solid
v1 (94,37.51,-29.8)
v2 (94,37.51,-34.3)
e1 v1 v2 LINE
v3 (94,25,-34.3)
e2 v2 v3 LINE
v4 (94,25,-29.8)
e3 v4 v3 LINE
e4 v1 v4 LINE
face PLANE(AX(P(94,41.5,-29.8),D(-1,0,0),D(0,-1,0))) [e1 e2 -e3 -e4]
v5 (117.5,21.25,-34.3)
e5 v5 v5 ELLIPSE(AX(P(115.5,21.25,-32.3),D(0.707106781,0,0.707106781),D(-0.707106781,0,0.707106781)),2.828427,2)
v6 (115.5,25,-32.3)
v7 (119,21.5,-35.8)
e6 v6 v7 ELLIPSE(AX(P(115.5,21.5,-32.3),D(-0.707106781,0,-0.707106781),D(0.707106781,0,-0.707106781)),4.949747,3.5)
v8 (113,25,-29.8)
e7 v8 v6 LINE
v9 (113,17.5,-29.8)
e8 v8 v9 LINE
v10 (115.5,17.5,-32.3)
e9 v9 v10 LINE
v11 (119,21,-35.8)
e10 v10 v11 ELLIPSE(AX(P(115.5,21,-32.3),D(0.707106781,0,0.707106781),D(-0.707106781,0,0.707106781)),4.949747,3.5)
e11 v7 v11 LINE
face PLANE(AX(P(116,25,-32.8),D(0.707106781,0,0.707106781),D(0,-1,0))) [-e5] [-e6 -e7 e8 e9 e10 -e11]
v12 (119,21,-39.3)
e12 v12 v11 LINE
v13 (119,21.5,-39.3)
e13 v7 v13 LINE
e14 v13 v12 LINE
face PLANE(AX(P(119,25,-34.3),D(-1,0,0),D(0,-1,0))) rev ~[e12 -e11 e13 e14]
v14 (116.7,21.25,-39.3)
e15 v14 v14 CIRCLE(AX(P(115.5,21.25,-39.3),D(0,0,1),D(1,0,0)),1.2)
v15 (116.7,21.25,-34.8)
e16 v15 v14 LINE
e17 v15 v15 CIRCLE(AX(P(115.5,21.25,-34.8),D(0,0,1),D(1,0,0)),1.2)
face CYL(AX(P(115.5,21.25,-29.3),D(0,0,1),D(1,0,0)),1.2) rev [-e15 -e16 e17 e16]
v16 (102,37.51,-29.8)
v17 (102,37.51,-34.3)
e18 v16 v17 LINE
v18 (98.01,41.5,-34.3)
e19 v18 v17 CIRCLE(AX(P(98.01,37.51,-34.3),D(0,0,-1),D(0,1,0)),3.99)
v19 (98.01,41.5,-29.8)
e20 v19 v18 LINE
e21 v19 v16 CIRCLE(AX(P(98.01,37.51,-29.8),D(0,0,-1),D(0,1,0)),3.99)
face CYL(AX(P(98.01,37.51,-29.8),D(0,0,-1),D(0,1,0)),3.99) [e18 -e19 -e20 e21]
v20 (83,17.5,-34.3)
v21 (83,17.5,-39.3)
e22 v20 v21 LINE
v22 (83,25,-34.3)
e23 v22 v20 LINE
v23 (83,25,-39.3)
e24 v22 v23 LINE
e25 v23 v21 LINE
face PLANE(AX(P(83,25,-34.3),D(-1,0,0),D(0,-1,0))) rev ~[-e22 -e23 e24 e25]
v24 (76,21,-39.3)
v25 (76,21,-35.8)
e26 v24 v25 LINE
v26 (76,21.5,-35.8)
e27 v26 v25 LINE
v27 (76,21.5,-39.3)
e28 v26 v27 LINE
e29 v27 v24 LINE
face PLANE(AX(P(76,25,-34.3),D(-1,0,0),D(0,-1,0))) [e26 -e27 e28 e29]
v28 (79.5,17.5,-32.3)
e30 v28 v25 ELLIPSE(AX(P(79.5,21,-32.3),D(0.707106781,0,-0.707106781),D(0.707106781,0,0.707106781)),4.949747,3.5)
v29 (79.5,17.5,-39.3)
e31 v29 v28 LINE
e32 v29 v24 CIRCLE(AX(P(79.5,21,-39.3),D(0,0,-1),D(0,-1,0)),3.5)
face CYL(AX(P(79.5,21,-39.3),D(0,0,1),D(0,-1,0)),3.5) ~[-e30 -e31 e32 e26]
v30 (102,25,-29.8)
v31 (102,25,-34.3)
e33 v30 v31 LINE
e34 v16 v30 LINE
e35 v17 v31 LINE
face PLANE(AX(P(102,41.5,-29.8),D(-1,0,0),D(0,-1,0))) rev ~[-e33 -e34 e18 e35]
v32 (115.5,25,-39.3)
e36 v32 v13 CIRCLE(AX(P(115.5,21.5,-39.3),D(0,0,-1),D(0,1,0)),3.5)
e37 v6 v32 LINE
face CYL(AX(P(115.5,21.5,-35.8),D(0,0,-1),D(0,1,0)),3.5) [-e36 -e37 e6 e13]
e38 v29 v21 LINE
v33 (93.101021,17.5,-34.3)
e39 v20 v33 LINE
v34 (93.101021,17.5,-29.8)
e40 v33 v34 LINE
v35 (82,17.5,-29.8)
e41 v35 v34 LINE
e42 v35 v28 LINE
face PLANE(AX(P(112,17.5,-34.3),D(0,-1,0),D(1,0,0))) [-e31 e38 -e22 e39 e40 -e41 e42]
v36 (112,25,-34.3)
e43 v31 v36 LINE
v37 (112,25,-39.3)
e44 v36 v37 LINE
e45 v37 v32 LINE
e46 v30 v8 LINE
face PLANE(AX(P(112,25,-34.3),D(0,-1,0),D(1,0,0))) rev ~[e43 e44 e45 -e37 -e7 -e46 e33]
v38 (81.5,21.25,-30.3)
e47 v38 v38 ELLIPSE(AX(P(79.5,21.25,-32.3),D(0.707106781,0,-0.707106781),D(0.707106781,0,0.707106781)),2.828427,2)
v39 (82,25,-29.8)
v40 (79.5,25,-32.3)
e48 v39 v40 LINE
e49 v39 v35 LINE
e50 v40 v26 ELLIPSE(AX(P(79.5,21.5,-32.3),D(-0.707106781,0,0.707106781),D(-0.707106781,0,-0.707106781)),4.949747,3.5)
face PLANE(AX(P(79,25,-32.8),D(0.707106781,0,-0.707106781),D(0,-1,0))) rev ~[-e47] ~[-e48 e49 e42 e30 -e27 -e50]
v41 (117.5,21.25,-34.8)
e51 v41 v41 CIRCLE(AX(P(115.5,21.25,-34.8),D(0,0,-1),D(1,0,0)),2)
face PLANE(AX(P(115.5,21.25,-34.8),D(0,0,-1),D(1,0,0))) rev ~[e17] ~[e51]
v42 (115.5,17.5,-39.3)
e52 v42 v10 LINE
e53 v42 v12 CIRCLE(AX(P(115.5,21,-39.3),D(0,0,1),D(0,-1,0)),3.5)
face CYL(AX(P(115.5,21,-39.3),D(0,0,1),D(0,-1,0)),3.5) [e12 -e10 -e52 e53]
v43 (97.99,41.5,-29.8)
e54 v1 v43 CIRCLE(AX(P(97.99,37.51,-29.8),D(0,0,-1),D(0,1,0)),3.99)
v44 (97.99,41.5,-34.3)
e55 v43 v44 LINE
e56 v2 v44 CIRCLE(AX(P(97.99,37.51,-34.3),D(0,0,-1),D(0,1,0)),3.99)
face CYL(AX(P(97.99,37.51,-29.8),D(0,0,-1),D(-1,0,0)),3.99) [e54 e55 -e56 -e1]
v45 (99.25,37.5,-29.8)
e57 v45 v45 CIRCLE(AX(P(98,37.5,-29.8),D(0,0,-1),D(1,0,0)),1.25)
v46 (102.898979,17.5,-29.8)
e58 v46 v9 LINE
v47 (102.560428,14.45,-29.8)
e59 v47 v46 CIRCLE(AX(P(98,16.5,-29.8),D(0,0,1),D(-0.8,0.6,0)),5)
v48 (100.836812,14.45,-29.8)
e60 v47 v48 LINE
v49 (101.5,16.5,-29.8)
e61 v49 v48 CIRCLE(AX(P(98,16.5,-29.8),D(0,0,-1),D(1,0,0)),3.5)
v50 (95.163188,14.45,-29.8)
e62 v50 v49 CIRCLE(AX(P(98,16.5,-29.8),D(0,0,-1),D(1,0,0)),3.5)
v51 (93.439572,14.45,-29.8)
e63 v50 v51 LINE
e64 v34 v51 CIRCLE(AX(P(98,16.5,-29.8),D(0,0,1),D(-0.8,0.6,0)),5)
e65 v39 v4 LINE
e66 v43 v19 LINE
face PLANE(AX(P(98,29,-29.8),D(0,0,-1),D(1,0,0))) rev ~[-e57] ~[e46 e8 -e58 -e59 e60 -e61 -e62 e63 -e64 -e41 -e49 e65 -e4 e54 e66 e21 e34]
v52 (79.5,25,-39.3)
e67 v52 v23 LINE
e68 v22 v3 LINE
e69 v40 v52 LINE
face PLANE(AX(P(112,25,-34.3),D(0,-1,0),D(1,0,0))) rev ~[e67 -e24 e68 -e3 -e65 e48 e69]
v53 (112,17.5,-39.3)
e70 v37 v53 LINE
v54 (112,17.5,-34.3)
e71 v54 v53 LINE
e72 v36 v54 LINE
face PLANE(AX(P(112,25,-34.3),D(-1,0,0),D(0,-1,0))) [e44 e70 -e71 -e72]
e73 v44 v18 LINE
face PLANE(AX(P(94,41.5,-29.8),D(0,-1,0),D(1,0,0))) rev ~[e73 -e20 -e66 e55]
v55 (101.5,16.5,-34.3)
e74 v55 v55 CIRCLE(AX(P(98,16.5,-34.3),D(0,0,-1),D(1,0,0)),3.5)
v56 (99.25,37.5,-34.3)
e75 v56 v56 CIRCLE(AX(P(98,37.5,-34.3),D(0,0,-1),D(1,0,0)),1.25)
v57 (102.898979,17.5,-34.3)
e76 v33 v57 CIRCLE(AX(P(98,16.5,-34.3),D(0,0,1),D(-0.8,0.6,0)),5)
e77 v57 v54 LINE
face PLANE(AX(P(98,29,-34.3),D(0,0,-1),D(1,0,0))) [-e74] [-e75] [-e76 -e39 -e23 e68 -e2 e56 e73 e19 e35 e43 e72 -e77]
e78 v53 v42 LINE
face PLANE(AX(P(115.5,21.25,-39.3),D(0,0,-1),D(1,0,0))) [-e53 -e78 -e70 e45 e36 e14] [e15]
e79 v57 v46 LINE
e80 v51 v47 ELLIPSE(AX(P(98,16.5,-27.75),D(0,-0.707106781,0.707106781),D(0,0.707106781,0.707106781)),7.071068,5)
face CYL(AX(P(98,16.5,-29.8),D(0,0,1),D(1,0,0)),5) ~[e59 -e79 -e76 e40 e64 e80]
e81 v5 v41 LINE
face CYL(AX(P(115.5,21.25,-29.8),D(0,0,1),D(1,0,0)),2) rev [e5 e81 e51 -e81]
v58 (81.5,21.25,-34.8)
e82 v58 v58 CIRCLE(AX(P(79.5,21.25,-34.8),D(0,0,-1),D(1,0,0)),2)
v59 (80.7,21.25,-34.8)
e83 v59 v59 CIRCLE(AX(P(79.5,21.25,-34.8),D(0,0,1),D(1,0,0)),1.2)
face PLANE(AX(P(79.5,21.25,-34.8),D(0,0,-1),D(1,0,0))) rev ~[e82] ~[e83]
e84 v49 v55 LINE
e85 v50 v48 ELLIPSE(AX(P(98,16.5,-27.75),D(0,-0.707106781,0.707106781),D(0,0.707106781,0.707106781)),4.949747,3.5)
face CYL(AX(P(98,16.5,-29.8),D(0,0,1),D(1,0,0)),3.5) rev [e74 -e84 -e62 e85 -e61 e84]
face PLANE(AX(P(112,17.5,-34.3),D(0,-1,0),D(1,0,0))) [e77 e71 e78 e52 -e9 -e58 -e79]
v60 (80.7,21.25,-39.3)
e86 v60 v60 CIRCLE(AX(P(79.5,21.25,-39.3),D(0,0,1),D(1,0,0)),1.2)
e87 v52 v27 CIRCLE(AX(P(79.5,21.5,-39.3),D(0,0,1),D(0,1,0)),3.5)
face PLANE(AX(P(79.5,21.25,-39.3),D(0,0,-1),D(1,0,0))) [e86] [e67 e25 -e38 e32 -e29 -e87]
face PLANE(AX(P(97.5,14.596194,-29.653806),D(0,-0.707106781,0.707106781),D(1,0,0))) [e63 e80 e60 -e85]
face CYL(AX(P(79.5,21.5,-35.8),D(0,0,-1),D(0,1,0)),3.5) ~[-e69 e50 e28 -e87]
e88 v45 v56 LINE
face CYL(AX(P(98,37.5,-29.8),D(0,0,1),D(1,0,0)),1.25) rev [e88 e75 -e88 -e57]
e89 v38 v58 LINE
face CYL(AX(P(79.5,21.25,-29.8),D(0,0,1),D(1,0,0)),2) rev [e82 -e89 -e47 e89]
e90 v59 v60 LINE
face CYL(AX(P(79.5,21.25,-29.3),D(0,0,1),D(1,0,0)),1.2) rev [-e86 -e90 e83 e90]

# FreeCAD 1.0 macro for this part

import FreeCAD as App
import Part
import Sketcher
from FreeCAD import Vector


def edges_at(feature, points):
    """Names of the edges that pass closest to the given points."""
    edges = feature.Shape.Edges
    near = lambda p: min(range(len(edges)), key=lambda i: edges[i].distToShape(Part.Vertex(*p))[0])
    return sorted({f"Edge{near(p) + 1}" for p in points})

doc = App.newDocument("Part")
body = doc.addObject("PartDesign::Body", "Body")

sketch1 = doc.addObject("Sketcher::SketchObject", "Sketch")
body.addObject(sketch1)
sketch1.AttachmentSupport = (doc.XY_Plane, [""])
sketch1.MapMode = "FlatFace"
sketch1.addGeometry([
    Part.LineSegment(Vector(0, 13, 0), Vector(0, 0, 0)),
    Part.LineSegment(Vector(0, 0, 0), Vector(15, 0, 0)),
    Part.LineSegment(Vector(15, 0, 0), Vector(15, 13, 0)),
    Part.LineSegment(Vector(15, 13, 0), Vector(0, 13, 0)),
], False)
sketch1.addConstraint([
    Sketcher.Constraint("Coincident", 0, 2, 1, 1),
    Sketcher.Constraint("Coincident", 1, 2, 2, 1),
    Sketcher.Constraint("Coincident", 2, 2, 3, 1),
    Sketcher.Constraint("Coincident", 3, 2, 0, 1),
    Sketcher.Constraint("Vertical", 0),
    Sketcher.Constraint("Horizontal", 1),
    Sketcher.Constraint("Vertical", 2),
    Sketcher.Constraint("Horizontal", 3),
    Sketcher.Constraint("Coincident", 0, 2, -1, 1),
    Sketcher.Constraint("DistanceX", 1, 1, 1, 2, 15.0),
    Sketcher.Constraint("DistanceY", 0, 2, 0, 1, 13.0),
])
pad1 = doc.addObject("PartDesign::Pad", "Pad")
body.addObject(pad1)
pad1.Profile = sketch1
pad1.Length = 4.5
body2 = doc.addObject("PartDesign::Body", "Body001")
doc.recompute()

body.Placement = App.Placement(Vector(0, 0, 0), App.Rotation(Vector(1, 0, 0), 45))
boolean = doc.addObject("PartDesign::Boolean", "Boolean")
body2.addObject(boolean)
boolean.Type = "Fuse"
boolean.addObjects([body])
body3 = doc.addObject("PartDesign::Body", "Body002")
doc.recompute()

body2.Placement = App.Placement(Vector(90, 10, -34.25), App.Rotation(Vector(0, 0, 1), 0))
boolean2 = doc.addObject("PartDesign::Boolean", "Boolean001")
body3.addObject(boolean2)
boolean2.Type = "Fuse"
boolean2.addObjects([body2])
body4 = doc.addObject("PartDesign::Body", "Body003")

sketch2 = doc.addObject("Sketcher::SketchObject", "Sketch001")
body4.addObject(sketch2)
sketch2.AttachmentSupport = (doc.getObject("XY_Plane003"), [""])
sketch2.MapMode = "FlatFace"
sketch2.AttachmentOffset = App.Placement(Vector(0, 0, -9.7), App.Rotation())
sketch2.addGeometry(Part.Circle(Vector(-18.5, -4.8, 0), Vector(0, 0, 1), 1.2), False)
sketch2.addConstraint([
    Sketcher.Constraint("Diameter", 0, 2.4),
    Sketcher.Constraint("DistanceX", 0, 3, -1, 1, 18.5),
    Sketcher.Constraint("DistanceY", 0, 3, -1, 1, 4.75),
])
pad2 = doc.addObject("PartDesign::Pad", "Pad001")
body4.addObject(pad2)
pad2.Profile = sketch2
pad2.Length = 20
body5 = doc.addObject("PartDesign::Body", "Body004")

sketch3 = doc.addObject("Sketcher::SketchObject", "Sketch002")
body5.addObject(sketch3)
sketch3.AttachmentSupport = (doc.getObject("XY_Plane004"), [""])
sketch3.MapMode = "FlatFace"
sketch3.AttachmentOffset = App.Placement(Vector(0, 0, -9.2), App.Rotation())
sketch3.addGeometry(Part.Circle(Vector(-18.5, -4.8, 0), Vector(0, 0, 1), 2), False)
sketch3.addConstraint([
    Sketcher.Constraint("Diameter", 0, 4.0),
    Sketcher.Constraint("DistanceX", 0, 3, -1, 1, 18.5),
    Sketcher.Constraint("DistanceY", 0, 3, -1, 1, 4.75),
])
pad3 = doc.addObject("PartDesign::Pad", "Pad002")
body5.addObject(pad3)
pad3.Profile = sketch3
pad3.Length = 5
doc.recompute()

boolean3 = doc.addObject("PartDesign::Boolean", "Boolean002")
body5.addObject(boolean3)
boolean3.Type = "Fuse"
boolean3.addObjects([body4])
body6 = doc.addObject("PartDesign::Body", "Body005")

sketch4 = doc.addObject("Sketcher::SketchObject", "Sketch003")
body6.addObject(sketch4)
sketch4.AttachmentSupport = (doc.getObject("XY_Plane005"), [""])
sketch4.MapMode = "FlatFace"
sketch4.AttachmentOffset = App.Placement(Vector(0, 0, -9.2), App.Rotation())
sketch4.addGeometry(Part.Circle(Vector(17.5, -4.8, 0), Vector(0, 0, 1), 2), False)
sketch4.addConstraint([
    Sketcher.Constraint("Diameter", 0, 4.0),
    Sketcher.Constraint("DistanceX", -1, 1, 0, 3, 17.5),
    Sketcher.Constraint("DistanceY", 0, 3, -1, 1, 4.75),
])
pad4 = doc.addObject("PartDesign::Pad", "Pad003")
body6.addObject(pad4)
pad4.Profile = sketch4
pad4.Length = 5
body7 = doc.addObject("PartDesign::Body", "Body006")
body7.AllowCompound = True

sketch5 = doc.addObject("Sketcher::SketchObject", "Sketch004")
body7.addObject(sketch5)
sketch5.AttachmentSupport = (doc.getObject("XY_Plane006"), [""])
sketch5.MapMode = "FlatFace"
sketch5.AttachmentOffset = App.Placement(Vector(0, 0, -9.7), App.Rotation())
sketch5.addGeometry(Part.Circle(Vector(17.5, -4.8, 0), Vector(0, 0, 1), 1.2), False)
sketch5.addConstraint([
    Sketcher.Constraint("Diameter", 0, 2.4),
    Sketcher.Constraint("DistanceX", -1, 1, 0, 3, 17.5),
    Sketcher.Constraint("DistanceY", 0, 3, -1, 1, 4.75),
])
pad5 = doc.addObject("PartDesign::Pad", "Pad004")
body7.addObject(pad5)
pad5.Profile = sketch5
pad5.Length = 20
doc.recompute()

boolean4 = doc.addObject("PartDesign::Boolean", "Boolean003")
body7.addObject(boolean4)
boolean4.Type = "Fuse"
boolean4.addObjects([body6])
doc.recompute()

boolean5 = doc.addObject("PartDesign::Boolean", "Boolean004")
body7.addObject(boolean5)
boolean5.Type = "Fuse"
boolean5.addObjects([body5])
body8 = doc.addObject("PartDesign::Body", "Body007")

sketch6 = doc.addObject("Sketcher::SketchObject", "Sketch005")
body8.addObject(sketch6)
sketch6.AttachmentSupport = (doc.getObject("XY_Plane007"), [""])
sketch6.MapMode = "FlatFace"
sketch6.AttachmentOffset = App.Placement(Vector(0, 0, -9.2), App.Rotation())
sketch6.addGeometry(Part.Circle(Vector(0, -21, 0), Vector(0, 0, 1), 1.2), False)
sketch6.addConstraint([
    Sketcher.Constraint("PointOnObject", 0, 3, -2),
    Sketcher.Constraint("Diameter", 0, 2.5),
    Sketcher.Constraint("DistanceY", 0, 3, -1, 1, 21.0),
])
pad6 = doc.addObject("PartDesign::Pad", "Pad005")
body8.addObject(pad6)
pad6.Profile = sketch6
pad6.Length = 4.5
body9 = doc.addObject("PartDesign::Body", "Body008")

sketch7 = doc.addObject("Sketcher::SketchObject", "Sketch006")
body9.addObject(sketch7)
sketch7.AttachmentSupport = (doc.getObject("XY_Plane008"), [""])
sketch7.MapMode = "FlatFace"
sketch7.AttachmentOffset = App.Placement(Vector(0, 0, -9.2), App.Rotation())
sketch7.addGeometry(Part.Circle(Vector(0, 0, 0), Vector(0, 0, 1), 3.5), False)
sketch7.addConstraint([
    Sketcher.Constraint("Coincident", 0, 3, -1, 1),
    Sketcher.Constraint("Diameter", 0, 7.0),
])
pad7 = doc.addObject("PartDesign::Pad", "Pad006")
body9.addObject(pad7)
pad7.Profile = sketch7
pad7.Length = 4.5
body10 = doc.addObject("PartDesign::Body", "Body009")

sketch8 = doc.addObject("Sketcher::SketchObject", "Sketch007")
body10.addObject(sketch8)
sketch8.AttachmentSupport = (doc.getObject("XY_Plane009"), [""])
sketch8.MapMode = "FlatFace"
sketch8.AttachmentOffset = App.Placement(Vector(0, 0, -4.7), App.Rotation())
sketch8.addGeometry([
    Part.LineSegment(Vector(-22, -1, 0), Vector(-22, -8, 0)),
    Part.LineSegment(Vector(-22, -8, 0), Vector(-15, -8, 0)),
    Part.LineSegment(Vector(-15, -8, 0), Vector(-15, -1, 0)),
    Part.LineSegment(Vector(-15, -1, 0), Vector(-22, -1, 0)),
], False)
sketch8.addConstraint([
    Sketcher.Constraint("Coincident", 0, 2, 1, 1),
    Sketcher.Constraint("Coincident", 1, 2, 2, 1),
    Sketcher.Constraint("Coincident", 2, 2, 3, 1),
    Sketcher.Constraint("Coincident", 3, 2, 0, 1),
    Sketcher.Constraint("Vertical", 0),
    Sketcher.Constraint("Horizontal", 1),
    Sketcher.Constraint("Vertical", 2),
    Sketcher.Constraint("Horizontal", 3),
    Sketcher.Constraint("DistanceX", 1, 1, 1, 2, 7.0),
    Sketcher.Constraint("DistanceY", 0, 2, 0, 1, 7.5),
    Sketcher.Constraint("DistanceX", 0, 2, -1, 1, 22.0),
    Sketcher.Constraint("DistanceY", 2, 2, -1, 1, 1.0),
])
pad8 = doc.addObject("PartDesign::Pad", "Pad007")
body10.addObject(pad8)
pad8.Profile = sketch8
pad8.Length = 5
body11 = doc.addObject("PartDesign::Body", "Body010")

sketch9 = doc.addObject("Sketcher::SketchObject", "Sketch008")
body11.addObject(sketch9)
sketch9.AttachmentSupport = (doc.getObject("XY_Plane010"), [""])
sketch9.MapMode = "FlatFace"
sketch9.AttachmentOffset = App.Placement(Vector(0, 0, -4.7), App.Rotation())
sketch9.addGeometry([
    Part.LineSegment(Vector(14, -1, 0), Vector(14, -8, 0)),
    Part.LineSegment(Vector(14, -8, 0), Vector(21, -8, 0)),
    Part.LineSegment(Vector(21, -8, 0), Vector(21, -1, 0)),
    Part.LineSegment(Vector(21, -1, 0), Vector(14, -1, 0)),
], False)
sketch9.addConstraint([
    Sketcher.Constraint("Coincident", 0, 2, 1, 1),
    Sketcher.Constraint("Coincident", 1, 2, 2, 1),
    Sketcher.Constraint("Coincident", 2, 2, 3, 1),
    Sketcher.Constraint("Coincident", 3, 2, 0, 1),
    Sketcher.Constraint("Vertical", 0),
    Sketcher.Constraint("Horizontal", 1),
    Sketcher.Constraint("Vertical", 2),
    Sketcher.Constraint("Horizontal", 3),
    Sketcher.Constraint("DistanceX", 1, 1, 1, 2, 7.0),
    Sketcher.Constraint("DistanceY", 0, 2, 0, 1, 7.5),
    Sketcher.Constraint("DistanceX", -1, 1, 0, 2, 14.0),
    Sketcher.Constraint("DistanceY", 2, 2, -1, 1, 1.0),
])
pad9 = doc.addObject("PartDesign::Pad", "Pad008")
body11.addObject(pad9)
pad9.Profile = sketch9
pad9.Length = 5
body12 = doc.addObject("PartDesign::Body", "Body011")

sketch10 = doc.addObject("Sketcher::SketchObject", "Sketch009")
body12.addObject(sketch10)
sketch10.AttachmentSupport = (doc.getObject("XY_Plane011"), [""])
sketch10.MapMode = "FlatFace"
sketch10.AttachmentOffset = App.Placement(Vector(0, 0, -9.2), App.Rotation())
sketch10.addGeometry([
    Part.LineSegment(Vector(-4, 0, 0), Vector(-4, -25, 0)),
    Part.LineSegment(Vector(-4, -25, 0), Vector(4, -25, 0)),
    Part.LineSegment(Vector(4, -25, 0), Vector(4, 0, 0)),
    Part.LineSegment(Vector(4, 0, 0), Vector(-4, 0, 0)),
], False)
sketch10.addConstraint([
    Sketcher.Constraint("Coincident", 0, 2, 1, 1),
    Sketcher.Constraint("Coincident", 1, 2, 2, 1),
    Sketcher.Constraint("Coincident", 2, 2, 3, 1),
    Sketcher.Constraint("Coincident", 3, 2, 0, 1),
    Sketcher.Constraint("Vertical", 0),
    Sketcher.Constraint("Horizontal", 1),
    Sketcher.Constraint("Vertical", 2),
    Sketcher.Constraint("Horizontal", 3),
    Sketcher.Constraint("Symmetric", 2, 2, 3, 2, -1, 1),
    Sketcher.Constraint("DistanceX", 1, 1, 1, 2, 8.0),
    Sketcher.Constraint("DistanceY", 0, 2, 0, 1, 25.0),
])
pad10 = doc.addObject("PartDesign::Pad", "Pad009")
body12.addObject(pad10)
pad10.Profile = sketch10
pad10.Length = 4.5
body13 = doc.addObject("PartDesign::Body", "Body012")

sketch11 = doc.addObject("Sketcher::SketchObject", "Sketch010")
body13.addObject(sketch11)
sketch11.AttachmentSupport = (doc.getObject("XY_Plane012"), [""])
sketch11.MapMode = "FlatFace"
sketch11.AttachmentOffset = App.Placement(Vector(0, 0, -9.2), App.Rotation())
sketch11.addGeometry(Part.Circle(Vector(0, 0, 0), Vector(0, 0, 1), 5), False)
sketch11.addConstraint([
    Sketcher.Constraint("Coincident", 0, 3, -1, 1),
    Sketcher.Constraint("Diameter", 0, 10.0),
])
pad11 = doc.addObject("PartDesign::Pad", "Pad010")
body13.addObject(pad11)
pad11.Profile = sketch11
pad11.Length = 4.5
doc.recompute()

boolean6 = doc.addObject("PartDesign::Boolean", "Boolean005")
body13.addObject(boolean6)
boolean6.Type = "Fuse"
boolean6.addObjects([body12])
doc.recompute()

fillet = doc.addObject("PartDesign::Fillet", "Fillet")
body13.addObject(fillet)
fillet.Base = (boolean6, edges_at(boolean6, [(4, -25, -6.95), (-4, -25, -6.95)]))
fillet.Radius = 3.99
body14 = doc.addObject("PartDesign::Body", "Body013")

sketch12 = doc.addObject("Sketcher::SketchObject", "Sketch011")
body14.addObject(sketch12)
sketch12.AttachmentSupport = (doc.getObject("XY_Plane013"), [""])
sketch12.MapMode = "FlatFace"
sketch12.AttachmentOffset = App.Placement(Vector(0, 0, -9.2), App.Rotation())
sketch12.addGeometry([
    Part.LineSegment(Vector(-22, -1, 0), Vector(-22, -8, 0)),
    Part.LineSegment(Vector(-22, -8, 0), Vector(21, -8, 0)),
    Part.LineSegment(Vector(21, -8, 0), Vector(21, -1, 0)),
    Part.LineSegment(Vector(21, -1, 0), Vector(-22, -1, 0)),
], False)
sketch12.addConstraint([
    Sketcher.Constraint("Coincident", 0, 2, 1, 1),
    Sketcher.Constraint("Coincident", 1, 2, 2, 1),
    Sketcher.Constraint("Coincident", 2, 2, 3, 1),
    Sketcher.Constraint("Coincident", 3, 2, 0, 1),
    Sketcher.Constraint("Vertical", 0),
    Sketcher.Constraint("Horizontal", 1),
    Sketcher.Constraint("Vertical", 2),
    Sketcher.Constraint("Horizontal", 3),
    Sketcher.Constraint("DistanceX", 1, 1, 1, 2, 43.0),
    Sketcher.Constraint("DistanceY", 0, 2, 0, 1, 7.5),
    Sketcher.Constraint("DistanceX", 0, 2, -1, 1, 22.0),
    Sketcher.Constraint("DistanceY", 2, 2, -1, 1, 1.0),
])
pad12 = doc.addObject("PartDesign::Pad", "Pad011")
body14.addObject(pad12)
pad12.Profile = sketch12
pad12.Length = 4.5
doc.recompute()

boolean7 = doc.addObject("PartDesign::Boolean", "Boolean006")
body14.addObject(boolean7)
boolean7.Type = "Fuse"
boolean7.addObjects([body10])
doc.recompute()

boolean8 = doc.addObject("PartDesign::Boolean", "Boolean007")
body14.addObject(boolean8)
boolean8.Type = "Fuse"
boolean8.addObjects([body11])
doc.recompute()

boolean9 = doc.addObject("PartDesign::Boolean", "Boolean008")
body14.addObject(boolean9)
boolean9.Type = "Fuse"
boolean9.addObjects([body13])
doc.recompute()

boolean10 = doc.addObject("PartDesign::Boolean", "Boolean009")
body14.addObject(boolean10)
boolean10.Type = "Cut"
boolean10.addObjects([body9])
doc.recompute()

chamfer = doc.addObject("PartDesign::Chamfer", "Chamfer")
body14.addObject(chamfer)
chamfer.Base = (boolean10, edges_at(boolean10, [(21, -4.75, -9.2), (-22, -4.75, -9.2)]))
chamfer.Size = 6
doc.recompute()

fillet2 = doc.addObject("PartDesign::Fillet", "Fillet001")
body14.addObject(fillet2)
fillet2.Base = (chamfer, edges_at(chamfer, [
    (-22, -8.5, -1.45),
    (-22, -1, -1.45),
    (21, -1, -1.45),
    (21, -8.5, -1.45),
]))
fillet2.Radius = 3.5
doc.recompute()

boolean11 = doc.addObject("PartDesign::Boolean", "Boolean010")
body14.addObject(boolean11)
boolean11.Type = "Cut"
boolean11.addObjects([body8])
doc.recompute()

boolean12 = doc.addObject("PartDesign::Boolean", "Boolean011")
body14.addObject(boolean12)
boolean12.Type = "Cut"
boolean12.addObjects([body7])
body15 = doc.addObject("PartDesign::Body", "Body014")
doc.recompute()

body14.Placement = App.Placement(Vector(98, 16.5, -39), App.Rotation(Vector(1, 0, 0), 180))
boolean13 = doc.addObject("PartDesign::Boolean", "Boolean012")
body15.addObject(boolean13)
boolean13.Type = "Fuse"
boolean13.addObjects([body14])
doc.recompute()

boolean14 = doc.addObject("PartDesign::Boolean", "Boolean013")
body15.addObject(boolean14)
boolean14.Type = "Cut"
boolean14.addObjects([body3])

doc.recompute()
